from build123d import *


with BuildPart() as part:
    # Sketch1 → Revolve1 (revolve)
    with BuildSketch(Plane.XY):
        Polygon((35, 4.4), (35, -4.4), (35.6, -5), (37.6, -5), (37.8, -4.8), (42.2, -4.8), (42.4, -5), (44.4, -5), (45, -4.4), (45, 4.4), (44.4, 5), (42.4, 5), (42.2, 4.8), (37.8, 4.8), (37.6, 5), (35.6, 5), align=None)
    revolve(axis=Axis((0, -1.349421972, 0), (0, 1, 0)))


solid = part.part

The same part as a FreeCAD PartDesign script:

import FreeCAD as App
import Part
import Sketcher

V = App.Vector


def add_polygon(sketch, points):
    """Adds a closed chain of lines whose ends are joined by coincident constraints."""
    first, n = sketch.GeometryCount, len(points)
    for a, b in zip(points, points[1:] + points[:1]):
        sketch.addGeometry(Part.LineSegment(App.Vector(*a, 0), App.Vector(*b, 0)), False)
    for i in range(n):
        sketch.addConstraint(Sketcher.Constraint("Coincident", first + i, 2, first + (i + 1) % n, 1))

doc = App.newDocument("Part")
params = doc.addObject("Spreadsheet::Sheet", "Params")
for row, (alias, value) in enumerate([
    ("sketch1_width", "2 mm"),
    ("sketch1_width2", "4.4 mm"),
    ("sketch1_height", "8.8 mm"),
    ("revolution_angle", "360 deg"),
], start=1):
    params.set(f"A{row}", alias)
    params.set(f"B{row}", "=" + value)
    params.setAlias(f"B{row}", alias)

body = doc.addObject("PartDesign::Body", "Body")

# Sketch on XY plane
sketch1 = doc.addObject("Sketcher::SketchObject", "Sketch")
body.addObject(sketch1)
sketch1.AttachmentSupport = (doc.XY_Plane, [""])
sketch1.MapMode = "FlatFace"
add_polygon(sketch1, [(35, 4.4), (35, -4.4), (35.6, -5), (37.6, -5), (37.8, -4.8), (42.2, -4.8), (42.4, -5), (44.4, -5), (45, -4.4), (45, 4.4), (44.4, 5), (42.4, 5), (42.2, 4.8), (37.8, 4.8), (37.6, 5), (35.6, 5)])  # lines 0-15
sketch1.addConstraint(Sketcher.Constraint("Vertical", 0))
sketch1.addConstraint(Sketcher.Constraint("Horizontal", 2))
sketch1.addConstraint(Sketcher.Constraint("Horizontal", 4))
sketch1.addConstraint(Sketcher.Constraint("Horizontal", 6))
sketch1.addConstraint(Sketcher.Constraint("Vertical", 8))
sketch1.addConstraint(Sketcher.Constraint("Horizontal", 10))
sketch1.addConstraint(Sketcher.Constraint("Horizontal", 12))
sketch1.addConstraint(Sketcher.Constraint("Horizontal", 14))
sketch1.addConstraint(Sketcher.Constraint("Symmetric", 6, 2, 9, 2, -1))
sketch1.addConstraint(Sketcher.Constraint("Symmetric", 4, 2, 11, 2, -1))
sketch1.addConstraint(Sketcher.Constraint("Symmetric", 2, 2, 13, 2, -1))
sketch1.addConstraint(Sketcher.Constraint("Perpendicular", 1, 3))
sketch1.addConstraint(Sketcher.Constraint("Perpendicular", 3, 5))
sketch1.addConstraint(Sketcher.Constraint("Perpendicular", 5, 7))
sketch1.addConstraint(Sketcher.Constraint("Perpendicular", 7, 9))
sketch1.addConstraint(Sketcher.Constraint("Perpendicular", 9, 11))
sketch1.addConstraint(Sketcher.Constraint("Perpendicular", 11, 13))
sketch1.addConstraint(Sketcher.Constraint("Perpendicular", 13, 15))
sketch1.addConstraint(Sketcher.Constraint("Horizontal", 2, 2, 5, 2))
sketch1.addConstraint(Sketcher.Constraint("Horizontal", 0, 2, 7, 2))
sketch1.addConstraint(Sketcher.Constraint("Horizontal", 8, 2, 15, 2))
sketch1.addConstraint(Sketcher.Constraint("Vertical", 5, 2, 10, 2))
sketch1.addConstraint(Sketcher.Constraint("Equal", 2, 6))
sketch1.addConstraint(Sketcher.Constraint("DistanceX", 2, 1, 2, 2, 2.0))
sketch1.addConstraint(Sketcher.Constraint("DistanceX", 4, 1, 4, 2, 4.4))
sketch1.addConstraint(Sketcher.Constraint("DistanceY", 0, 2, 0, 1, 8.8))
sketch1.addConstraint(Sketcher.Constraint("DistanceX", -1, 1, 0, 2, 35.0))
sketch1.addConstraint(Sketcher.Constraint("DistanceY", 1, 2, -1, 1, 5.0))
sketch1.addConstraint(Sketcher.Constraint("DistanceX", -1, 1, 7, 2, 45.0))
sketch1.setExpression("Constraints[39]", "Params.sketch1_width")
sketch1.setExpression("Constraints[40]", "Params.sketch1_width2")
sketch1.setExpression("Constraints[41]", "Params.sketch1_height")
revolution = doc.addObject("PartDesign::Revolution", "Revolution")
body.addObject(revolution)
revolution.Profile = sketch1
revolution.ReferenceAxis = (sketch1, ["V_Axis"])
revolution.setExpression("Angle", "Params.revolution_angle")

doc.recompute()
